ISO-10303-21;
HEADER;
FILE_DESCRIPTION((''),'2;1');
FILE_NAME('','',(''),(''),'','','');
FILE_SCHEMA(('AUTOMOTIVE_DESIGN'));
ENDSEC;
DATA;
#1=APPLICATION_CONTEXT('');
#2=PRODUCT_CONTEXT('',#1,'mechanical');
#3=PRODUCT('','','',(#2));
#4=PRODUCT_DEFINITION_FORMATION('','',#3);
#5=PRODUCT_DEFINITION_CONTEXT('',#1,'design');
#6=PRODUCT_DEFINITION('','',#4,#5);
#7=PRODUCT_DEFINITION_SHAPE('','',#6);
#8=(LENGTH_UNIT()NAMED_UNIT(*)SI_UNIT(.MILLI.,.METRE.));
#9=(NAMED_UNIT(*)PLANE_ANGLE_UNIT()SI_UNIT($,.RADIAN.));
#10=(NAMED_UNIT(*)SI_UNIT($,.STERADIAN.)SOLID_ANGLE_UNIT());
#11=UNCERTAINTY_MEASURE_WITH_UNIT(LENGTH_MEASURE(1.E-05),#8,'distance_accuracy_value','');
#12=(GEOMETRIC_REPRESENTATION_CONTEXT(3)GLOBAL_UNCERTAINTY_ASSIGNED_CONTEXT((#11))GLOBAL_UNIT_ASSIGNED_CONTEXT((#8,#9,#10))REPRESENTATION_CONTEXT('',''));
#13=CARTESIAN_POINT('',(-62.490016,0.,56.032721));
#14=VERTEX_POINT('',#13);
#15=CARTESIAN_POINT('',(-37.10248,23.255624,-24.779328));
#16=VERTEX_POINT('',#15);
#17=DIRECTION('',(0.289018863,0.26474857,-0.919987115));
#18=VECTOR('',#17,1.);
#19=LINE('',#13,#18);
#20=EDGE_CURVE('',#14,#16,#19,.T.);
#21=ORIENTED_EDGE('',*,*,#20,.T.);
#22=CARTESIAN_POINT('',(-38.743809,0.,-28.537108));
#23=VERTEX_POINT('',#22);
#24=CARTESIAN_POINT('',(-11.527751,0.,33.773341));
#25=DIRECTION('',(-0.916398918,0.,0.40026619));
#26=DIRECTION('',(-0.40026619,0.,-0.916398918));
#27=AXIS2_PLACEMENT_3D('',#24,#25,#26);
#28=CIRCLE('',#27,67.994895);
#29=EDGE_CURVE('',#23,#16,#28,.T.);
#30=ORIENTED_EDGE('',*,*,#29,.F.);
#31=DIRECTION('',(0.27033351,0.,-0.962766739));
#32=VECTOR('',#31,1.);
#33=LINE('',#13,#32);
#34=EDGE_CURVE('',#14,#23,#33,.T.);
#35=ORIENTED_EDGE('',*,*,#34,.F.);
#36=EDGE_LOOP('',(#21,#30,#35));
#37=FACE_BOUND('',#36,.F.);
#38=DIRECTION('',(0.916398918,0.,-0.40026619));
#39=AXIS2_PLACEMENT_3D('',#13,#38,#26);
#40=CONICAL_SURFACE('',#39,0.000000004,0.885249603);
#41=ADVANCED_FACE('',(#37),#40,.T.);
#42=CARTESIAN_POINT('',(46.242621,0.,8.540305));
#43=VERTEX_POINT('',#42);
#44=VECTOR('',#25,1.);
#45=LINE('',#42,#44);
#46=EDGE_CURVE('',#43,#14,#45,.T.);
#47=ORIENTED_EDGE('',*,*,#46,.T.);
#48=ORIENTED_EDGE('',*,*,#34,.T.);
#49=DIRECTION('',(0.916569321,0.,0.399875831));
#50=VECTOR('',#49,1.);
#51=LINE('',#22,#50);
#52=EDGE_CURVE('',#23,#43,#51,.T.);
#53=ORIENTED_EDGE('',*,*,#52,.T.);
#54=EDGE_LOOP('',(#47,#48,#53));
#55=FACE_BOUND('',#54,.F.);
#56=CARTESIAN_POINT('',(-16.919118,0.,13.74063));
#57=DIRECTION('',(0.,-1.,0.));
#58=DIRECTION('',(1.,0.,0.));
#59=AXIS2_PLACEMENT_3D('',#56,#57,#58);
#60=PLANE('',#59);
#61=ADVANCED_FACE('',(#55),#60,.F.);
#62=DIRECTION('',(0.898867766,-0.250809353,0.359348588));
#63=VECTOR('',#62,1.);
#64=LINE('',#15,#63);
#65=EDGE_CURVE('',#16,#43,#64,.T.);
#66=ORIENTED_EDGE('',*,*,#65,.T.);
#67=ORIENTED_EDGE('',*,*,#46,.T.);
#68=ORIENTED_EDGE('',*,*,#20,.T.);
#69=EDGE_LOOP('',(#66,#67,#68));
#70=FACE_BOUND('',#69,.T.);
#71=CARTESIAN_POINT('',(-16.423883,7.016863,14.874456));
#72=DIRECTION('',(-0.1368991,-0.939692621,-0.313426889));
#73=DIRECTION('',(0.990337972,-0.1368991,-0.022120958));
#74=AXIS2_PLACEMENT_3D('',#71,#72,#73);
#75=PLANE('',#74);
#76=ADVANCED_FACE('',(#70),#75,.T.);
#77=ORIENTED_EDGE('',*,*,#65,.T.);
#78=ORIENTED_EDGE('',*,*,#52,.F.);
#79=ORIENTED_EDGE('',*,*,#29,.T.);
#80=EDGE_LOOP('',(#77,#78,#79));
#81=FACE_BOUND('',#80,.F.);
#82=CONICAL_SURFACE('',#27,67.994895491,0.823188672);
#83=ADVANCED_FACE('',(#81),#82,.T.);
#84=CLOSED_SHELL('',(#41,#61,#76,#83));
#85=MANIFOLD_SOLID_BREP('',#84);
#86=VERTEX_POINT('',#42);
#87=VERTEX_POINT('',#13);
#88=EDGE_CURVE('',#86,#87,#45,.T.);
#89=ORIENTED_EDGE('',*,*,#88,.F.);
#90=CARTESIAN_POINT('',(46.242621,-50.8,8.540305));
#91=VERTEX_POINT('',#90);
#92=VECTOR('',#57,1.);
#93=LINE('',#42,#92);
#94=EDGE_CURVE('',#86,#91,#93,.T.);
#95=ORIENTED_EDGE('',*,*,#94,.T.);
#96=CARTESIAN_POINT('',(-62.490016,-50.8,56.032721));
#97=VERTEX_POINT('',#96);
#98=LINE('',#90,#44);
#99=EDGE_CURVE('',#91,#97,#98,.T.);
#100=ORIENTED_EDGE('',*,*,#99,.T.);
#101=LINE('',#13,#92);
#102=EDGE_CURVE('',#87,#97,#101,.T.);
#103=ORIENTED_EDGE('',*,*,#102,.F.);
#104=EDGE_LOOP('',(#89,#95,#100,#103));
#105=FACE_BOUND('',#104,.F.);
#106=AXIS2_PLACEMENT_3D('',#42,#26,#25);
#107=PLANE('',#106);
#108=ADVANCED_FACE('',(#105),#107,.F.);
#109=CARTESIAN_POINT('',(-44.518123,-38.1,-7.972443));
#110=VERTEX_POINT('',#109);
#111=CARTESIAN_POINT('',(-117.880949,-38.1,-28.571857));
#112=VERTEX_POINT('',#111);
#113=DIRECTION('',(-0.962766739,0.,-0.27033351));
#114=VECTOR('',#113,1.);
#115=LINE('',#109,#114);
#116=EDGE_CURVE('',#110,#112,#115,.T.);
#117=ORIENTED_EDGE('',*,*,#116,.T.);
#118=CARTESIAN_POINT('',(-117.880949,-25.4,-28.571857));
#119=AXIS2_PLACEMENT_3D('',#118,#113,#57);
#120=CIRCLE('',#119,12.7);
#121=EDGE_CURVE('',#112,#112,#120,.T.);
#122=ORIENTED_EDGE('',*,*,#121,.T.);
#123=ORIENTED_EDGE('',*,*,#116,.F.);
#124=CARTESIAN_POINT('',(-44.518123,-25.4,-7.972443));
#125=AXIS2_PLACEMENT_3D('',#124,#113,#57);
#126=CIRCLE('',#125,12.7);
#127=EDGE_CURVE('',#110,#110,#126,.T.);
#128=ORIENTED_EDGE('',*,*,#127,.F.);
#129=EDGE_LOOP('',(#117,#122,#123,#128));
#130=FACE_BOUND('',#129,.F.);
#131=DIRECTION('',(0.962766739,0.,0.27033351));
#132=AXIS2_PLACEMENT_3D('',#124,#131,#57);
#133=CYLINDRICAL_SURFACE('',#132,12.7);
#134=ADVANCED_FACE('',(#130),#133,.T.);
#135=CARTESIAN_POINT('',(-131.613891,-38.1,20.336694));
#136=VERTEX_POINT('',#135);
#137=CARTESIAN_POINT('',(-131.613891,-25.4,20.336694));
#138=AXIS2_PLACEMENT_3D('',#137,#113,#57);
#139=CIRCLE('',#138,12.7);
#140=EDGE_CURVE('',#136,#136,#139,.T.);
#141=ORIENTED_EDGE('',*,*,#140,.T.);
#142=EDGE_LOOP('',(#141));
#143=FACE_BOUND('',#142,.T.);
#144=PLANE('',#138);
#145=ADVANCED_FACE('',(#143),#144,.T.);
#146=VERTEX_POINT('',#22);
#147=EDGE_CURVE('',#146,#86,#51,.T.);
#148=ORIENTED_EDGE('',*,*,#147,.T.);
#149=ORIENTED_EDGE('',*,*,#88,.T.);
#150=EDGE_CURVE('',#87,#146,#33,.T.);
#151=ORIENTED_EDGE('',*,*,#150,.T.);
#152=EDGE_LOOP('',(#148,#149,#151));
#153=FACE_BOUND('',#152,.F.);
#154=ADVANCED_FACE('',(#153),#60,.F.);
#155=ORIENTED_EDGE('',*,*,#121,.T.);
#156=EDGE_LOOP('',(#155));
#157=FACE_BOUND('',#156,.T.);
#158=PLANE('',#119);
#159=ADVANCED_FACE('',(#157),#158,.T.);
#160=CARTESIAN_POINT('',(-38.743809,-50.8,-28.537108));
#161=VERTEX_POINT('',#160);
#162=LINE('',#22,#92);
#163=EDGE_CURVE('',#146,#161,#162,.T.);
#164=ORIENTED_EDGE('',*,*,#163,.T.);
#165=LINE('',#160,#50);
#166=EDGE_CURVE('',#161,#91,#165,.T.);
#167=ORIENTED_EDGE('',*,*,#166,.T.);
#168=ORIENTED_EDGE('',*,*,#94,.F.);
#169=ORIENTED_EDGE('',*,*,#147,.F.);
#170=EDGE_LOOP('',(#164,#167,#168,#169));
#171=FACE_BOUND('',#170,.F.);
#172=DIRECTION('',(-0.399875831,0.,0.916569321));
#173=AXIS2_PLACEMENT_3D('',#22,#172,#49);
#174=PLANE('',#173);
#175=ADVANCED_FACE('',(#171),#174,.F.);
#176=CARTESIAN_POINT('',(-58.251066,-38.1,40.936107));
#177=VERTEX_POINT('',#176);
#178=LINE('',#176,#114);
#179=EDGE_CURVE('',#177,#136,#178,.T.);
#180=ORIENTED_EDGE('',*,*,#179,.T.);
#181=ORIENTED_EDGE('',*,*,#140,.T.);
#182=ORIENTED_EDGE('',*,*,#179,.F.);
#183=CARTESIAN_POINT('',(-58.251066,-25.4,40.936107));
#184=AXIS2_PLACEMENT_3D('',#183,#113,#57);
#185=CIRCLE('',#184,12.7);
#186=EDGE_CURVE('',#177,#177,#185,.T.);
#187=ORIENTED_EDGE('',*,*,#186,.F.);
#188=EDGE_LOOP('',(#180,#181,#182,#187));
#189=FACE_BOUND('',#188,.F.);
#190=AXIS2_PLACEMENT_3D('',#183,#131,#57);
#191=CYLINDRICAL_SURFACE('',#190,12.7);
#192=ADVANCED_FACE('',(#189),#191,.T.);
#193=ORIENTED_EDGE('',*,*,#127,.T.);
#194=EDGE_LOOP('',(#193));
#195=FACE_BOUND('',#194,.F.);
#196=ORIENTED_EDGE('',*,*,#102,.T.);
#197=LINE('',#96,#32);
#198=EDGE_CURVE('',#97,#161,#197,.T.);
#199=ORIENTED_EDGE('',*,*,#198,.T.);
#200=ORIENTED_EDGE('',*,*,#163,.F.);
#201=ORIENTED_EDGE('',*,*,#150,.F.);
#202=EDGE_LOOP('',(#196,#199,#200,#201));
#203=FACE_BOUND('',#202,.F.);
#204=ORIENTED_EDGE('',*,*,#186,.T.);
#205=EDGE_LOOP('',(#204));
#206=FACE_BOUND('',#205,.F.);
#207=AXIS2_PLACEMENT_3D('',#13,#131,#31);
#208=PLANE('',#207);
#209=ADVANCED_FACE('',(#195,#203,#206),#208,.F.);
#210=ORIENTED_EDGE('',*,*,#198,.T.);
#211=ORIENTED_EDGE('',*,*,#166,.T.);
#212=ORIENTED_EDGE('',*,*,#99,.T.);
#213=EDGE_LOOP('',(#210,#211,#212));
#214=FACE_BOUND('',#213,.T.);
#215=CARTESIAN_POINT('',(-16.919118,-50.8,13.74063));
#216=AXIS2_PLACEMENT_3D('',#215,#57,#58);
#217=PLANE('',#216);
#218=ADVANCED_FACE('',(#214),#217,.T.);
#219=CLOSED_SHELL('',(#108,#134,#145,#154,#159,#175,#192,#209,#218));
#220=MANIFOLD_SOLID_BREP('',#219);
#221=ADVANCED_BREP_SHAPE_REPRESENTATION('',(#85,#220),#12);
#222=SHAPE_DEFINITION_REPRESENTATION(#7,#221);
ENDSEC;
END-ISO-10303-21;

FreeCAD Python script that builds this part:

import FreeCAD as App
import Part
import Sketcher
from FreeCAD import Vector
Q = App.Units.Quantity


def add_polygon(sketch, points):
    """Adds a closed chain of lines whose ends are joined by coincident constraints."""
    first, n = sketch.GeometryCount, len(points)
    for a, b in zip(points, points[1:] + points[:1]):
        sketch.addGeometry(Part.LineSegment(App.Vector(*a, 0), App.Vector(*b, 0)), False)
    for i in range(n):
        sketch.addConstraint(Sketcher.Constraint("Coincident", first + i, 2, first + (i + 1) % n, 1))

doc = App.newDocument("Part")
body = doc.addObject("PartDesign::Body", "Body")

# Sketch on XZ plane
sketch1 = body.newObject("Sketcher::SketchObject", "Sketch")
sketch1.AttachmentSupport = (doc.getObject("XZ_Plane"), [""])
sketch1.MapMode = "FlatFace"
add_polygon(sketch1, [(46, 9), (-62, 56), (-39, -29)])  # lines 0-2
sketch1.addConstraint([
    Sketcher.Constraint("Distance", 0, 118.652079),
    Sketcher.Constraint("DistanceY", -1, 1, 0, 2, 56.032721),
    Sketcher.Constraint("DistanceX", 1, 2, -1, 1, 38.743809),
    Sketcher.Constraint("DistanceX", -1, 1, 2, 2, 46.242621),
    Sketcher.Constraint("DistanceY", 1, 2, 0, 2, 84.569829),
    Sketcher.Constraint("Distance", 1, 87.840414),
])
pad1 = body.newObject("PartDesign::Pad", "Pad")
pad1.Profile = sketch1
pad1.Length = Q("2 in")

# Sketch on an angled plane
sketch2 = body.newObject("Sketcher::SketchObject", "Sketch001")
sketch2.Placement = App.Placement(Vector(-43.339702, 0, -12.169276), App.Rotation(Vector(0, -1, 0), Vector(-0.27033351, 0, 0.962766739), Vector(-0.962766739, 0, -0.27033351), "ZXY"))
sketch2.addGeometry([
    Part.Circle(Vector(25, 4, 0), Vector(0, 0, 1), 13),
    Part.Circle(Vector(25, 55, 0), Vector(0, 0, 1), 13),
], False)
sketch2.addConstraint([
    Sketcher.Constraint("Equal", 0, 1),
    Sketcher.Constraint("Vertical", 0, 3, 1, 3),
    Sketcher.Constraint("Diameter", 0, Q("1 in")),
    Sketcher.Constraint("DistanceX", -1, 1, 0, 3, Q("1 in")),
    Sketcher.Constraint("DistanceY", 0, 3, 1, 3, Q("2 in")),
    Sketcher.Constraint("DistanceY", -1, 1, 0, 3, 4.359137),
])
pad2 = body.newObject("PartDesign::Pad", "Pad001")
pad2.Profile = sketch2
pad2.Length = Q("3 in")
body2 = doc.addObject("PartDesign::Body", "Body001")

# Sketch on XZ plane
sketch3 = body2.newObject("Sketcher::SketchObject", "Sketch002")
sketch3.AttachmentSupport = (doc.getObject("XZ_Plane001"), [""])
sketch3.MapMode = "FlatFace"
add_polygon(sketch3, [(46, 9), (-62, 56), (-39, -29)])  # lines 0-2
sketch3.addGeometry(Part.LineSegment(Vector(46, 9, 0), Vector(-62, 56, 0)), True)  # axis
sketch3.addConstraint([
    Sketcher.Constraint("Coincident", 3, 1, 2, 2),
    Sketcher.Constraint("Coincident", 3, 2, 0, 2),
    Sketcher.Constraint("Distance", 0, 118.652079),
    Sketcher.Constraint("DistanceY", -1, 1, 0, 2, 56.032721),
    Sketcher.Constraint("DistanceX", 1, 2, -1, 1, 38.743809),
    Sketcher.Constraint("DistanceX", -1, 1, 2, 2, 46.242621),
    Sketcher.Constraint("DistanceY", 1, 2, 0, 2, 84.569829),
    Sketcher.Constraint("Distance", 1, 87.840414),
])
revolution = body2.newObject("PartDesign::Revolution", "Revolution")
revolution.Profile = sketch3
revolution.ReferenceAxis = (sketch3, ["Axis0"])
revolution.Angle = 340

doc.recompute()
